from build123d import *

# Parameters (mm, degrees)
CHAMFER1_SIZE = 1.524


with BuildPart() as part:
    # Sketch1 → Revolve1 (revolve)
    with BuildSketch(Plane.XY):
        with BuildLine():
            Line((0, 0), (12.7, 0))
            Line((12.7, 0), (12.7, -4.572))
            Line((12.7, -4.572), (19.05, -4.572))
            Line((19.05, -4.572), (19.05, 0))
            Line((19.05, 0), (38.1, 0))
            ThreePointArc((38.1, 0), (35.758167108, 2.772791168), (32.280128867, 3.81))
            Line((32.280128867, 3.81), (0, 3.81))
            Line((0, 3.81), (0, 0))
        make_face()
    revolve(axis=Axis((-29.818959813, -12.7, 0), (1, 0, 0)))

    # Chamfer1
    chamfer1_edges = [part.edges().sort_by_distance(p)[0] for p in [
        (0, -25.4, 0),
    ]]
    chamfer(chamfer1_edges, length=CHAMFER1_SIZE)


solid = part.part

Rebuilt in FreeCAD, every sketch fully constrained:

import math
import FreeCAD as App
import Part
import Sketcher
from FreeCAD import Vector
Q = App.Units.Quantity


def edges_at(feature, points):
    """Names of the edges that pass closest to the given points."""
    edges = feature.Shape.Edges
    near = lambda p: min(range(len(edges)), key=lambda i: edges[i].distToShape(Part.Vertex(*p))[0])
    return sorted({f"Edge{near(p) + 1}" for p in points})

doc = App.newDocument("Part")
params = doc.addObject("Spreadsheet::Sheet", "Params")
for row, (alias, value) in enumerate([
    ("sketch1_radius", "0.25 in"),
    ("sketch1_width", "0.5 in"),
    ("sketch1_width2", "1.5 in"),
    ("sketch1_width3", "0.25 in"),
    ("sketch1_height", "0.18 in"),
    ("revolution_angle", "360 deg"),
    ("chamfer_size", "0.06 in"),
], start=1):
    params.set(f"A{row}", alias)
    params.set(f"B{row}", "=" + value)
    params.setAlias(f"B{row}", alias)

body = doc.addObject("PartDesign::Body", "Body")

# Sketch on XY plane
sketch1 = doc.addObject("Sketcher::SketchObject", "Sketch")
body.addObject(sketch1)
sketch1.AttachmentSupport = (doc.XY_Plane, [""])
sketch1.MapMode = "FlatFace"
sketch1.addGeometry(Part.LineSegment(Vector(0, 0, 0), Vector(12.7, 0, 0)), False)
sketch1.addGeometry(Part.LineSegment(Vector(12.7, 0, 0), Vector(12.7, -4.6, 0)), False)
sketch1.addGeometry(Part.LineSegment(Vector(12.7, -4.6, 0), Vector(19.1, -4.6, 0)), False)
sketch1.addGeometry(Part.LineSegment(Vector(19.1, -4.6, 0), Vector(19.1, 0, 0)), False)
sketch1.addGeometry(Part.LineSegment(Vector(19.1, 0, 0), Vector(38.1, 0, 0)), False)
sketch1.addGeometry(Part.ArcOfCircle(Part.Circle(Vector(32.3, -2.5, 0), Vector(0, 0, 1), 6.4), math.radians(24), math.radians(90)), False)
sketch1.addGeometry(Part.LineSegment(Vector(32.3, 3.8, 0), Vector(0, 3.8, 0)), False)
sketch1.addGeometry(Part.LineSegment(Vector(0, 3.8, 0), Vector(0, 0, 0)), False)
sketch1.addGeometry(Part.LineSegment(Vector(0, -12.7, 0), Vector(38.1, -12.7, 0)), True)  # axis
sketch1.addConstraint(Sketcher.Constraint("Coincident", 0, 2, 1, 1))
sketch1.addConstraint(Sketcher.Constraint("Coincident", 1, 2, 2, 1))
sketch1.addConstraint(Sketcher.Constraint("Coincident", 2, 2, 3, 1))
sketch1.addConstraint(Sketcher.Constraint("Coincident", 3, 2, 4, 1))
sketch1.addConstraint(Sketcher.Constraint("Coincident", 4, 2, 5, 1))
sketch1.addConstraint(Sketcher.Constraint("Tangent", 5, 2, 6, 1))
sketch1.addConstraint(Sketcher.Constraint("Coincident", 6, 2, 7, 1))
sketch1.addConstraint(Sketcher.Constraint("Coincident", 7, 2, 0, 1))
sketch1.addConstraint(Sketcher.Constraint("Horizontal", 0))
sketch1.addConstraint(Sketcher.Constraint("Vertical", 1))
sketch1.addConstraint(Sketcher.Constraint("Horizontal", 2))
sketch1.addConstraint(Sketcher.Constraint("Vertical", 3))
sketch1.addConstraint(Sketcher.Constraint("Horizontal", 4))
sketch1.addConstraint(Sketcher.Constraint("Horizontal", 6))
sketch1.addConstraint(Sketcher.Constraint("Vertical", 7))
sketch1.addConstraint(Sketcher.Constraint("Horizontal", 8))
sketch1.addConstraint(Sketcher.Constraint("Coincident", 7, 2, -1, 1))
sketch1.addConstraint(Sketcher.Constraint("PointOnObject", 3, 2, -1))
sketch1.addConstraint(Sketcher.Constraint("PointOnObject", 8, 1, -2))
sketch1.addConstraint(Sketcher.Constraint("Vertical", 4, 2, 8, 2))
sketch1.addConstraint(Sketcher.Constraint("Radius", 5, Q("0.25 in")))
sketch1.addConstraint(Sketcher.Constraint("DistanceX", 0, 1, 0, 2, Q("0.5 in")))
sketch1.addConstraint(Sketcher.Constraint("DistanceX", 8, 1, 8, 2, Q("1.5 in")))
sketch1.addConstraint(Sketcher.Constraint("DistanceX", 2, 1, 2, 2, Q("0.25 in")))
sketch1.addConstraint(Sketcher.Constraint("DistanceY", 1, 2, 1, 1, Q("0.18 in")))
sketch1.addConstraint(Sketcher.Constraint("DistanceY", 7, 2, 7, 1, Q("0.15 in")))
sketch1.addConstraint(Sketcher.Constraint("DistanceY", 8, 1, -1, 1, Q("0.5 in")))
sketch1.setExpression("Constraints[20]", "Params.sketch1_radius")
sketch1.setExpression("Constraints[21]", "Params.sketch1_width")
sketch1.setExpression("Constraints[22]", "Params.sketch1_width2")
sketch1.setExpression("Constraints[23]", "Params.sketch1_width3")
sketch1.setExpression("Constraints[24]", "Params.sketch1_height")
revolution = doc.addObject("PartDesign::Revolution", "Revolution")
body.addObject(revolution)
revolution.Profile = sketch1
revolution.ReferenceAxis = (sketch1, ["Axis0"])
revolution.setExpression("Angle", "Params.revolution_angle")
doc.recompute()

chamfer = doc.addObject("PartDesign::Chamfer", "Chamfer")
body.addObject(chamfer)
chamfer.Base = (revolution, edges_at(revolution, [(0, -25.4, 0)]))
chamfer.setExpression("Size", "Params.chamfer_size")

doc.recompute()
